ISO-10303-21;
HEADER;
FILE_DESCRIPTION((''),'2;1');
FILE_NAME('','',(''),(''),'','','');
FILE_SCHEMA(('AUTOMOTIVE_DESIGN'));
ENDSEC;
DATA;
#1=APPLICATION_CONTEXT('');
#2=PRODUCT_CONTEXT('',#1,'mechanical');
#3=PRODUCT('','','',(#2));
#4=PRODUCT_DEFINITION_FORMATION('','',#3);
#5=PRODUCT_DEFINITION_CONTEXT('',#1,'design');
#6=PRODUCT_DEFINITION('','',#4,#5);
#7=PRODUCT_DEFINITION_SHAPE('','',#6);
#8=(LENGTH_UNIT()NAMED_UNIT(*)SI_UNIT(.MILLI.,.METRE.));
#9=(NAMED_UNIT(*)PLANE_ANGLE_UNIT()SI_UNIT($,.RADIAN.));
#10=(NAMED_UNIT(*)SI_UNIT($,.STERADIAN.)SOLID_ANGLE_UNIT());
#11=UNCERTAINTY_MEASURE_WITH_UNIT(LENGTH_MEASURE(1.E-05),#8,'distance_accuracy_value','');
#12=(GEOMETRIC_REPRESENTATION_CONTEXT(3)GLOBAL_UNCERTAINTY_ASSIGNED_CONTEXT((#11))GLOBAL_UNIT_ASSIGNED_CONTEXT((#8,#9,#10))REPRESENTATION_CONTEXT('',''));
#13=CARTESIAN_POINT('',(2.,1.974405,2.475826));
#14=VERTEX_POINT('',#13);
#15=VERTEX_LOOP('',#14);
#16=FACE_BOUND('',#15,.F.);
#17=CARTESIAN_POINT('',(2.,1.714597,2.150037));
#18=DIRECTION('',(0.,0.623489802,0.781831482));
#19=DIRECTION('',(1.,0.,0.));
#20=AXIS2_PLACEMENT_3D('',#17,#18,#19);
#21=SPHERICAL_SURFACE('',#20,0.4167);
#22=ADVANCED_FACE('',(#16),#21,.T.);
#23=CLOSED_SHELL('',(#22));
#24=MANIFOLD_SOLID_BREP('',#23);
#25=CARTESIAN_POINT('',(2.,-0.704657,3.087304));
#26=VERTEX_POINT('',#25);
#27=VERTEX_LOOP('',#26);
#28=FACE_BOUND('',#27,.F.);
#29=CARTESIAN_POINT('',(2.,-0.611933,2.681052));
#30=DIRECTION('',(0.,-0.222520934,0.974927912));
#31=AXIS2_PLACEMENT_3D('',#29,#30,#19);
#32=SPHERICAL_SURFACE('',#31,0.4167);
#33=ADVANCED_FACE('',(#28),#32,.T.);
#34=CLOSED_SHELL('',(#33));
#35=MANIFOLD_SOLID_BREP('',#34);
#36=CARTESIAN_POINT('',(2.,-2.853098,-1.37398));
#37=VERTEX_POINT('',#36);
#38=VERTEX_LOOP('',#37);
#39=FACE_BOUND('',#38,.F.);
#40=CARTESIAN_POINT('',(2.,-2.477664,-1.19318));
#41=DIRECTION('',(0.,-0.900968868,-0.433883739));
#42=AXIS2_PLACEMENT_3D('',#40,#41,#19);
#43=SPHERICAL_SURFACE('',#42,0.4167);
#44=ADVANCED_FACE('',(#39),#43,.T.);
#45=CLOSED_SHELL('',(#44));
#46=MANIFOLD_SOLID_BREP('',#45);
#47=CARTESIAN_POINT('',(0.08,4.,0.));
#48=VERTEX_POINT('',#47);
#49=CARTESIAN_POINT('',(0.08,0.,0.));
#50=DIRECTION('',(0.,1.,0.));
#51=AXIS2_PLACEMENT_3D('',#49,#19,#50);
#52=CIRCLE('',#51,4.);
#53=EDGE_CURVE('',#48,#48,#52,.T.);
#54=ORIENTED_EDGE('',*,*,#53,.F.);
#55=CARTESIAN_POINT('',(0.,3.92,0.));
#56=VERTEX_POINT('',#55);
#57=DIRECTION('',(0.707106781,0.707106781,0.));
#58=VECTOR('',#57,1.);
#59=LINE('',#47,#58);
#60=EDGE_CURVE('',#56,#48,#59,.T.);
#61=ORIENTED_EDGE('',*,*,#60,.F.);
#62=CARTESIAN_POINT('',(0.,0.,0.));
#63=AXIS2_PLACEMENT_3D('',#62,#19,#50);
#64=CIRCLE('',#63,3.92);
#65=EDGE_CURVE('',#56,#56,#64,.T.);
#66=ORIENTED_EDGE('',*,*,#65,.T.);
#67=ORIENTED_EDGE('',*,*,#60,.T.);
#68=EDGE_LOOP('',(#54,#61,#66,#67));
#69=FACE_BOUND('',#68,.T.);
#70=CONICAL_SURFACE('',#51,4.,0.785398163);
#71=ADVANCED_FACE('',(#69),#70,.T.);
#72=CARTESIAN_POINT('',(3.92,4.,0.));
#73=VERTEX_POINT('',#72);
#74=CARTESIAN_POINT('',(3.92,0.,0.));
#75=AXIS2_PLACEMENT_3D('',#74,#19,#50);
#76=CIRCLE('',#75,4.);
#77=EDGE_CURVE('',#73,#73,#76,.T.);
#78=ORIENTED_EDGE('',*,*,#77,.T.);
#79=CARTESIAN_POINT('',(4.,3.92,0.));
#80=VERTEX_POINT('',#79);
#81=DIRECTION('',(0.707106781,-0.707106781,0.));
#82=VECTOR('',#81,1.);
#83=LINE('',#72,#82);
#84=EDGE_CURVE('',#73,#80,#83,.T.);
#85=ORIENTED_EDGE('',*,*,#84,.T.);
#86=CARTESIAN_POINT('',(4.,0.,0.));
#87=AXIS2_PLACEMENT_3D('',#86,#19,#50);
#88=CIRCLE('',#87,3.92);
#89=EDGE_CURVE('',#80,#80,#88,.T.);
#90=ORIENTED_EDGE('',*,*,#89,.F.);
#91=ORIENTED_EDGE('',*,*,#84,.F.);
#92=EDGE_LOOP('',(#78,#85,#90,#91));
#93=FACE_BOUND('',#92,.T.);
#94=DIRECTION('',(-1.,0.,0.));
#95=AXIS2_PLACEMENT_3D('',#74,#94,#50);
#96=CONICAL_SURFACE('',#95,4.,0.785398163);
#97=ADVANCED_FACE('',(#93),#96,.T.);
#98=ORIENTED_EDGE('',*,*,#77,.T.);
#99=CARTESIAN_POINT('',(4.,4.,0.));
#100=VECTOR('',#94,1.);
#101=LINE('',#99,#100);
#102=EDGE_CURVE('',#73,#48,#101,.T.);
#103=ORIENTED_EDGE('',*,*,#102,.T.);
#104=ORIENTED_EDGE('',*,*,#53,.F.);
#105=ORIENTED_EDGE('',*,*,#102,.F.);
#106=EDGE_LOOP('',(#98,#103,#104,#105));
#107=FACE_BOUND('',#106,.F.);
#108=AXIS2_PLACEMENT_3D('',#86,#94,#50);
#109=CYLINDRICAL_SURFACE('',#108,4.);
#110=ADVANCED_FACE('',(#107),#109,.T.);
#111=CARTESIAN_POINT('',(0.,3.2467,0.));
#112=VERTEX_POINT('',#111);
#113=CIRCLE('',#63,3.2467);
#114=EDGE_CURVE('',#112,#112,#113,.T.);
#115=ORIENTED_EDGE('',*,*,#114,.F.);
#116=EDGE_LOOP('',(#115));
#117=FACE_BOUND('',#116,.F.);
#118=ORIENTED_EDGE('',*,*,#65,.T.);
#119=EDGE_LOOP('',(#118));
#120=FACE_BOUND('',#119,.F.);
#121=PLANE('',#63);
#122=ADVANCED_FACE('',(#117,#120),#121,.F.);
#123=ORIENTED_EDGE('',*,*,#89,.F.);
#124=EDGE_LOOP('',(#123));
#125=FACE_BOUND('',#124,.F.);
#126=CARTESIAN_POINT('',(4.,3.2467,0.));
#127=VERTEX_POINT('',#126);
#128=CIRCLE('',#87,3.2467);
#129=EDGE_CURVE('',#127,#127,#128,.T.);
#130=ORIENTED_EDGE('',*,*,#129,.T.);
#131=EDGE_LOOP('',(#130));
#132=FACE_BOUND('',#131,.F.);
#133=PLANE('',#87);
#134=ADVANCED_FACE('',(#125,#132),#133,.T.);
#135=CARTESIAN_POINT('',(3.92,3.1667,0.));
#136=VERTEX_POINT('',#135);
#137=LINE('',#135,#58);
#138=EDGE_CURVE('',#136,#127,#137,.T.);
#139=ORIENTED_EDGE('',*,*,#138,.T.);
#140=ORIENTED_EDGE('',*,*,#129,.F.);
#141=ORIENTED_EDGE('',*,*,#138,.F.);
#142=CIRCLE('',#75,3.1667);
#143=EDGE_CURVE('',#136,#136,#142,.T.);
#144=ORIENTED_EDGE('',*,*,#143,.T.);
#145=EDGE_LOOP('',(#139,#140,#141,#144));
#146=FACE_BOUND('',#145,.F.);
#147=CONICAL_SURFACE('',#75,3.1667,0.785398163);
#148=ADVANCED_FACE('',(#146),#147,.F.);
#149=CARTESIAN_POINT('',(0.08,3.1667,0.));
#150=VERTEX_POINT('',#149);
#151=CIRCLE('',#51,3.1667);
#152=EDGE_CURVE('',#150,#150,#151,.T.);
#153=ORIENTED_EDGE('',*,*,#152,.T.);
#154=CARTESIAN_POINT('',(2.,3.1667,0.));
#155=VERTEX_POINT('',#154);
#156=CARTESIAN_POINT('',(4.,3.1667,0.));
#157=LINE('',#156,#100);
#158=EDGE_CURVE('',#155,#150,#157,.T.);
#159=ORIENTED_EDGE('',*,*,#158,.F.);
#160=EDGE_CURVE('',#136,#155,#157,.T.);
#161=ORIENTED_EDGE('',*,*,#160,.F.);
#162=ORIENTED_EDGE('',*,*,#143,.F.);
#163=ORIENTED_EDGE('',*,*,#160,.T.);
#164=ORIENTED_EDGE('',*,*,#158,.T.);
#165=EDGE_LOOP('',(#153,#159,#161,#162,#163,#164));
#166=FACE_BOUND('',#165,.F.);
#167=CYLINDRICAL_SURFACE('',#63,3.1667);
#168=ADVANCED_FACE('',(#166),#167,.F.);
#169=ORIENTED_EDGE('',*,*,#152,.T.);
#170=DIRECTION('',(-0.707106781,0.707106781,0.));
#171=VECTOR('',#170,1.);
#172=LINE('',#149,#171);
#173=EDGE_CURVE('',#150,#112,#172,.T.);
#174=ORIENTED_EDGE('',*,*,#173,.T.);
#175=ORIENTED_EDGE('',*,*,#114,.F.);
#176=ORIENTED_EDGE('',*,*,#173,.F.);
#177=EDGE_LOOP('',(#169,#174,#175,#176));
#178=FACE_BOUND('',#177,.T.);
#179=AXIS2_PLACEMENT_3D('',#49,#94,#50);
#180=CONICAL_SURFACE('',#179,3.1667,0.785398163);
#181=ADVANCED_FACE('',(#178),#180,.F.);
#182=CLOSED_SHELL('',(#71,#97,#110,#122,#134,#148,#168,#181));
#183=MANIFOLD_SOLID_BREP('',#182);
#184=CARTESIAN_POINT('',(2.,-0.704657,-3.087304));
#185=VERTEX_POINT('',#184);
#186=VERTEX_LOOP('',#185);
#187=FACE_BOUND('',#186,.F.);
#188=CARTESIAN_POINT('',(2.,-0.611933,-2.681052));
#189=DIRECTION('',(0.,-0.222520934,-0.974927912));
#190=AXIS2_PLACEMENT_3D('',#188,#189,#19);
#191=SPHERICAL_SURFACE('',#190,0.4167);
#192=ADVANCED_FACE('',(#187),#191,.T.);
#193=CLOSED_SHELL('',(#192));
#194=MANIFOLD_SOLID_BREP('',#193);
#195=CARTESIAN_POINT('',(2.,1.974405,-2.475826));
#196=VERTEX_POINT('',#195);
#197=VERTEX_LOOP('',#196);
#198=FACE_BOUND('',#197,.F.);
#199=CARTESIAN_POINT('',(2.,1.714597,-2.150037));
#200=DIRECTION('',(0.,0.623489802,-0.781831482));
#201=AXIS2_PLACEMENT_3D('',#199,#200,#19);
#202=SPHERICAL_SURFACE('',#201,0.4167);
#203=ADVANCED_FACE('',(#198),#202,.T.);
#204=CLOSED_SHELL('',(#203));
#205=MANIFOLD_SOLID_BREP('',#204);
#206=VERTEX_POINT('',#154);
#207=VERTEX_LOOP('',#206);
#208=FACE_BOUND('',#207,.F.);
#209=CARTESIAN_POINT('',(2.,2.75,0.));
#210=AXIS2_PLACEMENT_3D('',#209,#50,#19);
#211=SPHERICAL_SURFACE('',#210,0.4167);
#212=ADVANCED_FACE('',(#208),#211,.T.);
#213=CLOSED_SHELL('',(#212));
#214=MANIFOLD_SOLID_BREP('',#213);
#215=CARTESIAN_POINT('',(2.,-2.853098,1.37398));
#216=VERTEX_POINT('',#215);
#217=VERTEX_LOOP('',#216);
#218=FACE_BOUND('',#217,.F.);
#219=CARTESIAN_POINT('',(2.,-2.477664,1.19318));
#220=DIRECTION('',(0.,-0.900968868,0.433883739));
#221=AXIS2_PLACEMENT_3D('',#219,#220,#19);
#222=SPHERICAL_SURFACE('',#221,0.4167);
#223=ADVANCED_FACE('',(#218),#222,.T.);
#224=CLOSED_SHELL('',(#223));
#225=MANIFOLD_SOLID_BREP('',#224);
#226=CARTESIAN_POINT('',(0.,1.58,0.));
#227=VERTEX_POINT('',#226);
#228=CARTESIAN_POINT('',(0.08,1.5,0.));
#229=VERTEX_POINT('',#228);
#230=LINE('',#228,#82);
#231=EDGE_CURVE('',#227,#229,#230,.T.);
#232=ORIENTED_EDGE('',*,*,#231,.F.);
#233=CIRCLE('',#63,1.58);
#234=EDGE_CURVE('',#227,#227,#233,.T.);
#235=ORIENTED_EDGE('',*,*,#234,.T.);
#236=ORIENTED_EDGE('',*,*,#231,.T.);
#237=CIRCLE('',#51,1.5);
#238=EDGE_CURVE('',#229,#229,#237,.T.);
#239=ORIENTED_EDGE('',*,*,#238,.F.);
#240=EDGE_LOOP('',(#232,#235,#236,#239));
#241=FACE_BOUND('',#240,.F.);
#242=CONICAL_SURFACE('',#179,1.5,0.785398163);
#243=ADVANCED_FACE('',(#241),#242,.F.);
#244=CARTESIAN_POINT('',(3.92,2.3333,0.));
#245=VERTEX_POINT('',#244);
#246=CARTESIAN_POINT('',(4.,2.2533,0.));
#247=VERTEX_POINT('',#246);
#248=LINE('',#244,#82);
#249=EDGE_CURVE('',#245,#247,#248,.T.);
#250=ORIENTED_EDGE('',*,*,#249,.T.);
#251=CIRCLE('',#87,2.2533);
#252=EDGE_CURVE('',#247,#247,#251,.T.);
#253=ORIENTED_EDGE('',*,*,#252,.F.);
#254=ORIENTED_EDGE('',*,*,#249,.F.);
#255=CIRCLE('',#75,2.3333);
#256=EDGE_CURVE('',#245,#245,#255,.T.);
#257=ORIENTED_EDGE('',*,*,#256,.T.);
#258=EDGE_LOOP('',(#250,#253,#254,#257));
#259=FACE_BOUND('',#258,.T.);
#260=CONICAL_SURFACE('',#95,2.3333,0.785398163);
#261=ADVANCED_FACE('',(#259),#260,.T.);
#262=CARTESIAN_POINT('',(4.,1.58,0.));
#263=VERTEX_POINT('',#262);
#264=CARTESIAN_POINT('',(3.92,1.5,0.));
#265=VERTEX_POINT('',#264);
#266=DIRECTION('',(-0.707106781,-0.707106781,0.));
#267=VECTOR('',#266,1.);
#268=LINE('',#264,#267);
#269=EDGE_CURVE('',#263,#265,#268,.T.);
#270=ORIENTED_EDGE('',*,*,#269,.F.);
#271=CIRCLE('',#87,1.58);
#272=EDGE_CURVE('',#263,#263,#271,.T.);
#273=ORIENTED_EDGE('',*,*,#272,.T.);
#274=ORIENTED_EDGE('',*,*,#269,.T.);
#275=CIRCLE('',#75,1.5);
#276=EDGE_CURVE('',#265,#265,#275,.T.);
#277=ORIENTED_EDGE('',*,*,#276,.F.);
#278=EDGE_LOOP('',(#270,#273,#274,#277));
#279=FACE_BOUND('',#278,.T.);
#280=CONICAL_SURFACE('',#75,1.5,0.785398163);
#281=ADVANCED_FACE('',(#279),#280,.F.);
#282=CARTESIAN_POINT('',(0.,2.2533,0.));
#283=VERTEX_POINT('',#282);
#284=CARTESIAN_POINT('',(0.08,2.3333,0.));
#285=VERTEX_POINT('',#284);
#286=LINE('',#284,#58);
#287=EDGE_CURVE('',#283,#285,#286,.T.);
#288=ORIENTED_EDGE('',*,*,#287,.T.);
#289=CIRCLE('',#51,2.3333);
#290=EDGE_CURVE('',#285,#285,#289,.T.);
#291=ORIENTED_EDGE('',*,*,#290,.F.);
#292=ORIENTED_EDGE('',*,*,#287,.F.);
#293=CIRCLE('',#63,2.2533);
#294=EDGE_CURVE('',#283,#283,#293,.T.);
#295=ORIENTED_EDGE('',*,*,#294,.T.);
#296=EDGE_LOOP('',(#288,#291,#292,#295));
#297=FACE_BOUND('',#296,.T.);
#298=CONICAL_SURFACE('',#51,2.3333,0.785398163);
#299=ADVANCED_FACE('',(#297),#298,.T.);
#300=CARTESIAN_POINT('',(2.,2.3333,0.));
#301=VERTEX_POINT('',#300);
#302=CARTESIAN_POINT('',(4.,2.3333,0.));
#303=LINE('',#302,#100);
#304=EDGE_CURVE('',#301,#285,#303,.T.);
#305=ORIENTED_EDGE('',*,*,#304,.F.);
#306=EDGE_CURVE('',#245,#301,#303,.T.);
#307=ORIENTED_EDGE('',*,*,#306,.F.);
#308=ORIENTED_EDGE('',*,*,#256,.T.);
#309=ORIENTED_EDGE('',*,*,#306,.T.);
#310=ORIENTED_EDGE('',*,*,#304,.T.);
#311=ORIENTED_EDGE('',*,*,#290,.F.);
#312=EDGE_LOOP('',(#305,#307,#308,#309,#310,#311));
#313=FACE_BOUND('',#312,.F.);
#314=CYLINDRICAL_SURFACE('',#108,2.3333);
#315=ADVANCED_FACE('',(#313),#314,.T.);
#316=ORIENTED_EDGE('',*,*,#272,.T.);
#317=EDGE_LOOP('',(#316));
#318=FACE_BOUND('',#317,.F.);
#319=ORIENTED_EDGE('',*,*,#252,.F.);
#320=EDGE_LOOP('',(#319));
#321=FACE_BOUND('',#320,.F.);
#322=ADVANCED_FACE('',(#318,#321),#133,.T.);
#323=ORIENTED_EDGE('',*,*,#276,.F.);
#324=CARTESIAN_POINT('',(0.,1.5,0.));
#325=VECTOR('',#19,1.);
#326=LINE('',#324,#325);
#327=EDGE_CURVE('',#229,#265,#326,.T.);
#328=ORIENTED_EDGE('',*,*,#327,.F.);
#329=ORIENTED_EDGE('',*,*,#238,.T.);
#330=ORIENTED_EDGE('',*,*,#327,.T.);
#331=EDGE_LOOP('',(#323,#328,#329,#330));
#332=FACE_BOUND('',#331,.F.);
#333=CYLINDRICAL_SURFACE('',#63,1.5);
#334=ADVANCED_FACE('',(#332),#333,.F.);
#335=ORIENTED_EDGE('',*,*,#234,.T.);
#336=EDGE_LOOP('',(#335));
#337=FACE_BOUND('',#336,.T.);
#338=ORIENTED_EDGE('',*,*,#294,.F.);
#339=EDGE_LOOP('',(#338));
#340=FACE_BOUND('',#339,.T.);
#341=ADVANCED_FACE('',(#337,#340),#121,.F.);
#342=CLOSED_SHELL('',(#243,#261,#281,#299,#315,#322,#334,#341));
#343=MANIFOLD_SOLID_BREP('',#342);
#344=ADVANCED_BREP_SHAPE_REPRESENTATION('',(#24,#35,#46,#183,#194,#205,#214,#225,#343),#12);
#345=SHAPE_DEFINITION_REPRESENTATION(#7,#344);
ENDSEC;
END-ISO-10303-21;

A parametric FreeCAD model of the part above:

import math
import FreeCAD as App
import Part
import Sketcher
Q = App.Units.Quantity


def edges_at(feature, points):
    """Names of the edges that pass closest to the given points."""
    edges = feature.Shape.Edges
    near = lambda p: min(range(len(edges)), key=lambda i: edges[i].distToShape(Part.Vertex(*p))[0])
    return sorted({f"Edge{near(p) + 1}" for p in points})


def add_polygon(sketch, points):
    """Adds a closed chain of lines whose ends are joined by coincident constraints."""
    first, n = sketch.GeometryCount, len(points)
    for a, b in zip(points, points[1:] + points[:1]):
        sketch.addGeometry(Part.LineSegment(App.Vector(*a, 0), App.Vector(*b, 0)), False)
    for i in range(n):
        sketch.addConstraint(Sketcher.Constraint("Coincident", first + i, 2, first + (i + 1) % n, 1))

doc = App.newDocument("Part")
body = doc.addObject("PartDesign::Body", "Body")
body.AllowCompound = True

sketch1 = body.newObject("Sketcher::SketchObject", "Sketch")
sketch1.AttachmentSupport = (doc.getObject("XY_Plane"), [""])
sketch1.MapMode = "FlatFace"
add_polygon(sketch1, [(0, 3.1667), (4, 3.1667), (4, 4), (0, 4)])
add_polygon(sketch1, [(0, 2.3333), (0, 1.5), (4, 1.5), (4, 2.3333)])
sketch1.addConstraint([
    Sketcher.Constraint("Horizontal", 0),
    Sketcher.Constraint("Vertical", 1),
    Sketcher.Constraint("Horizontal", 2),
    Sketcher.Constraint("Vertical", 3),
    Sketcher.Constraint("Vertical", 4),
    Sketcher.Constraint("Horizontal", 5),
    Sketcher.Constraint("Vertical", 6),
    Sketcher.Constraint("Horizontal", 7),
    Sketcher.Constraint("PointOnObject", 2, 2, -2),
    Sketcher.Constraint("PointOnObject", 4, 2, -2),
    Sketcher.Constraint("Vertical", 1, 2, 5, 2),
    Sketcher.Constraint("Equal", 3, 4),
    Sketcher.Constraint("DistanceX", 0, 1, 0, 2, Q("4 mm")),
    Sketcher.Constraint("DistanceY", -1, 1, 1, 2, Q("4 mm")),
    Sketcher.Constraint("DistanceY", 1, 1, 1, 2, Q("0.8333 mm")),
    Sketcher.Constraint("DistanceY", -1, 1, 4, 2, Q("1.5 mm")),
])
revolution = body.newObject("PartDesign::Revolution", "Revolution")
revolution.Profile = sketch1
revolution.ReferenceAxis = (sketch1, ["H_Axis"])
revolution.Angle = 360
doc.recompute()

chamfer = body.newObject("PartDesign::Chamfer", "Chamfer")
chamfer.Base = (revolution, edges_at(revolution, [
    (4, -4, 0),
    (4, -3.167, 0),
    (4, -2.333, 0),
    (4, -1.5, 0),
    (0, -4, 0),
    (0, -3.167, 0),
    (0, -2.333, 0),
    (0, -1.5, 0),
]))
chamfer.Size = 0.08

sketch2 = body.newObject("Sketcher::SketchObject", "Sketch001")
sketch2.AttachmentSupport = (doc.getObject("XY_Plane"), [""])
sketch2.MapMode = "FlatFace"
sketch2.addGeometry([
    Part.LineSegment(App.Vector(2, 3.1667, 0), App.Vector(2, 2.3333, 0)),
    Part.ArcOfCircle(Part.Circle(App.Vector(2, 2.75, 0), App.Vector(0, 0, 1), 0.4167), math.radians(-90), math.radians(90)),
], False)
sketch2.addGeometry(Part.LineSegment(App.Vector(2, 3.1667, 0), App.Vector(2, 2.3333, 0)), True)
sketch2.addConstraint([
    Sketcher.Constraint("Coincident", 0, 1, 1, 2),
    Sketcher.Constraint("Coincident", 1, 1, 0, 2),
    Sketcher.Constraint("Vertical", 0),
    Sketcher.Constraint("Vertical", 2),
    Sketcher.Constraint("Coincident", 2, 1, 0, 1),
    Sketcher.Constraint("Vertical", 1, 3, 0, 1),
    Sketcher.Constraint("Equal", 0, 2),
    Sketcher.Constraint("Radius", 1, Q("0.4167 mm")),
    Sketcher.Constraint("DistanceX", -1, 1, 1, 3, Q("2 mm")),
    Sketcher.Constraint("DistanceY", -1, 1, 1, 3, Q("2.75 mm")),
])
revolution2 = body.newObject("PartDesign::Revolution", "Revolution001")
revolution2.Profile = sketch2
revolution2.ReferenceAxis = (sketch2, ["Axis0"])
revolution2.Angle = 360
doc.recompute()

polarpattern = body.newObject("PartDesign::PolarPattern", "PolarPattern")
polarpattern.Originals = [revolution2]
polarpattern.Axis = (doc.getObject("X_Axis"), [""])
polarpattern.Angle = 360
polarpattern.Occurrences = 7
body.Tip = polarpattern

doc.recompute()
